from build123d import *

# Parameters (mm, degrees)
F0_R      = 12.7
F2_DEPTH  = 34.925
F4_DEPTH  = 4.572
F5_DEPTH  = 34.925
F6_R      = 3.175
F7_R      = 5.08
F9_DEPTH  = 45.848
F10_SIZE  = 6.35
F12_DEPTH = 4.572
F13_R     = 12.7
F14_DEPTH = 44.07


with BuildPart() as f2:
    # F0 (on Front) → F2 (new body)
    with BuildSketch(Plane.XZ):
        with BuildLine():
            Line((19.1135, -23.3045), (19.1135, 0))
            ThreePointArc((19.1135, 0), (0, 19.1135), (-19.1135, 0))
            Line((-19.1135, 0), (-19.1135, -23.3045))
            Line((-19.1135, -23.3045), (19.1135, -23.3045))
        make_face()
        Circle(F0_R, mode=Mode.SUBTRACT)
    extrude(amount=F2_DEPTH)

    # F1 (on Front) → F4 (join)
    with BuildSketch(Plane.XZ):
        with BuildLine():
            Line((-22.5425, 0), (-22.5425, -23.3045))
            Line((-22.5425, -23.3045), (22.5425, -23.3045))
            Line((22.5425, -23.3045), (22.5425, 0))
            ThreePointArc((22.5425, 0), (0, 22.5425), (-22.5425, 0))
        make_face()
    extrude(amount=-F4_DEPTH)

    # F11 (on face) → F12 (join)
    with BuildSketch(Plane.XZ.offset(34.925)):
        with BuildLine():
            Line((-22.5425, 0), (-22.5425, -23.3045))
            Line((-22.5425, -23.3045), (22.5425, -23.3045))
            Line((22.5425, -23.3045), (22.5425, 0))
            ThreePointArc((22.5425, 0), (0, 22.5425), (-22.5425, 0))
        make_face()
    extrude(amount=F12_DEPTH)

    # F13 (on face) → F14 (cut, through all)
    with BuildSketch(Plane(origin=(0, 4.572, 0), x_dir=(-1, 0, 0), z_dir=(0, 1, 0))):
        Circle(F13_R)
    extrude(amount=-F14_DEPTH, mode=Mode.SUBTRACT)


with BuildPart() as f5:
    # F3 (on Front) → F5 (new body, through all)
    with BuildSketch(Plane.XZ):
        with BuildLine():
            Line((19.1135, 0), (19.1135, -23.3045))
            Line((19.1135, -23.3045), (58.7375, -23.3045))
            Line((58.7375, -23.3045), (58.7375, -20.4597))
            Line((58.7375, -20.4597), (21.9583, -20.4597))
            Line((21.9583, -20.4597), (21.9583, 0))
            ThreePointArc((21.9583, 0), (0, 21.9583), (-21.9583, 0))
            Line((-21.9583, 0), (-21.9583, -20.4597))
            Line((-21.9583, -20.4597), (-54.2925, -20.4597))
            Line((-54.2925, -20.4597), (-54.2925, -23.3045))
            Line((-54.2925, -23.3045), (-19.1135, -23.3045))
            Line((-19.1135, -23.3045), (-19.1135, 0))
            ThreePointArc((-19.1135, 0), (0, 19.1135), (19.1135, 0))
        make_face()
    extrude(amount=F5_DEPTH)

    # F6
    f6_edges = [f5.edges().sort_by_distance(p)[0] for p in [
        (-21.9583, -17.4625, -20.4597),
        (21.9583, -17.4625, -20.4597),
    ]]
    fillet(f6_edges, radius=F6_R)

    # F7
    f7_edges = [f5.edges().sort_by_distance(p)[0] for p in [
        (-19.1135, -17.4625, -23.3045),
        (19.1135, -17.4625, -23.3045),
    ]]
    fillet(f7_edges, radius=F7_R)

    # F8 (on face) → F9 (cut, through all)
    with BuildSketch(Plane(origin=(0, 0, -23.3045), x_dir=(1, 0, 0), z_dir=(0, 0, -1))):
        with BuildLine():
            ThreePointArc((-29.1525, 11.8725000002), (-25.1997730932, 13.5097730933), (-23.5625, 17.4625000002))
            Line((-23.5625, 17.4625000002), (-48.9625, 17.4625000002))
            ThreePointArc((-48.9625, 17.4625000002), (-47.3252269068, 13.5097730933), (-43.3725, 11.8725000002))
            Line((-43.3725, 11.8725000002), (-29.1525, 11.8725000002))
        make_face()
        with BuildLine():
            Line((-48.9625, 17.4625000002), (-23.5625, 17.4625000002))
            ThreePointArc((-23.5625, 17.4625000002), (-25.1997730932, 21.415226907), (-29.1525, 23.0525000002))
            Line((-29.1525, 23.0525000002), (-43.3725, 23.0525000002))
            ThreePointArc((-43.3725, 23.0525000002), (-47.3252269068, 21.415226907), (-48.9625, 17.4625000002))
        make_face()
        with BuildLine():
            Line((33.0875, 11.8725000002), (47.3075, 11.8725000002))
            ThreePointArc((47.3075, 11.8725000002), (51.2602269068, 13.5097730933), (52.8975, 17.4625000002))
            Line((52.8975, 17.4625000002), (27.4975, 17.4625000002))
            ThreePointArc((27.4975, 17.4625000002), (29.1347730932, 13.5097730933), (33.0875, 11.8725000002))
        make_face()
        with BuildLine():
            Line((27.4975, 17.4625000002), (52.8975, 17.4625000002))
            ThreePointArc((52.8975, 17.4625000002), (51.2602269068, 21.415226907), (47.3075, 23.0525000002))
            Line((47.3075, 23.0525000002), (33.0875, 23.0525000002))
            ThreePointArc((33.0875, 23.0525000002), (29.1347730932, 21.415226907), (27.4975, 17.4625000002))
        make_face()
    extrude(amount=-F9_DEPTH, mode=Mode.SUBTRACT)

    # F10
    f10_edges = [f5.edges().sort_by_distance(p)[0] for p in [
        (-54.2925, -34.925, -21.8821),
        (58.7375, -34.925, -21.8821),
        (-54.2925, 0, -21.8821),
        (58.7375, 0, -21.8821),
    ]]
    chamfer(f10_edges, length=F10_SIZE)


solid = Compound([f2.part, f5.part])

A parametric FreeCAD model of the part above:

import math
import FreeCAD as App
import Part
import Sketcher
Q = App.Units.Quantity


def edges_at(feature, points):
    """Names of the edges that pass closest to the given points."""
    edges = feature.Shape.Edges
    near = lambda p: min(range(len(edges)), key=lambda i: edges[i].distToShape(Part.Vertex(*p))[0])
    return sorted({f"Edge{near(p) + 1}" for p in points})

doc = App.newDocument("Part")
body = doc.addObject("PartDesign::Body", "Body")

# Sketch on XZ plane
sketch1 = body.newObject("Sketcher::SketchObject", "Sketch")
sketch1.AttachmentSupport = (doc.getObject("XZ_Plane"), [""])
sketch1.MapMode = "FlatFace"
sketch1.addGeometry([
    Part.LineSegment(App.Vector(19, -23, 0), App.Vector(19, 0, 0)),  # 0
    Part.ArcOfCircle(Part.Circle(App.Vector(0, 0, 0), App.Vector(0, 0, 1), 19), math.radians(0), math.radians(180)),  # 1
    Part.LineSegment(App.Vector(-19, 0, 0), App.Vector(-19, -23, 0)),  # 2
    Part.LineSegment(App.Vector(-19, -23, 0), App.Vector(19, -23, 0)),  # 3
    Part.Circle(App.Vector(0, 0, 0), App.Vector(0, 0, 1), 13),  # 4
], False)
sketch1.addConstraint([
    Sketcher.Constraint("Tangent", 0, 2, 1, 1),
    Sketcher.Constraint("Tangent", 1, 2, 2, 1),
    Sketcher.Constraint("Coincident", 2, 2, 3, 1),
    Sketcher.Constraint("Coincident", 3, 2, 0, 1),
    Sketcher.Constraint("Vertical", 0),
    Sketcher.Constraint("Vertical", 2),
    Sketcher.Constraint("Horizontal", 3),
    Sketcher.Constraint("Coincident", 1, 3, -1, 1),
    Sketcher.Constraint("Coincident", 4, 3, -1, 1),
    Sketcher.Constraint("Diameter", 4, Q("1 in")),
    Sketcher.Constraint("Radius", 1, Q("0.7525 in")),
    Sketcher.Constraint("DistanceY", 0, 1, 0, 2, Q("0.9175 in")),
])
pad1 = body.newObject("PartDesign::Pad", "Pad")
pad1.Profile = sketch1
pad1.Length = Q("1.375 in")

# Sketch on XZ plane
sketch2 = body.newObject("Sketcher::SketchObject", "Sketch001")
sketch2.AttachmentSupport = (doc.getObject("XZ_Plane"), [""])
sketch2.MapMode = "FlatFace"
sketch2.addGeometry([
    Part.LineSegment(App.Vector(-23, 0, 0), App.Vector(-23, -23, 0)),
    Part.LineSegment(App.Vector(-23, -23, 0), App.Vector(23, -23, 0)),
    Part.LineSegment(App.Vector(23, -23, 0), App.Vector(23, 0, 0)),
    Part.ArcOfCircle(Part.Circle(App.Vector(0, 0, 0), App.Vector(0, 0, 1), 23), math.radians(0), math.radians(180)),
], False)
sketch2.addConstraint([
    Sketcher.Constraint("Coincident", 0, 2, 1, 1),
    Sketcher.Constraint("Coincident", 1, 2, 2, 1),
    Sketcher.Constraint("Tangent", 2, 2, 3, 1),
    Sketcher.Constraint("Tangent", 3, 2, 0, 1),
    Sketcher.Constraint("Vertical", 0),
    Sketcher.Constraint("Horizontal", 1),
    Sketcher.Constraint("Vertical", 2),
    Sketcher.Constraint("Coincident", 3, 3, -1, 1),
    Sketcher.Constraint("Radius", 3, Q("0.8875 in")),
    Sketcher.Constraint("DistanceY", 0, 2, 0, 1, Q("0.9175 in")),
])
pad2 = body.newObject("PartDesign::Pad", "Pad001")
pad2.Profile = sketch2
pad2.Length = Q("0.18 in")
pad2.Reversed = True

# Sketch on XZ plane
sketch3 = body.newObject("Sketcher::SketchObject", "Sketch002")
sketch3.AttachmentSupport = (doc.getObject("XZ_Plane"), [""])
sketch3.MapMode = "FlatFace"
sketch3.AttachmentOffset = App.Placement(App.Vector(0, 0, 1.375 * 25.4), App.Rotation())
sketch3.addGeometry([
    Part.LineSegment(App.Vector(-23, 0, 0), App.Vector(-23, -23, 0)),
    Part.LineSegment(App.Vector(-23, -23, 0), App.Vector(23, -23, 0)),
    Part.LineSegment(App.Vector(23, -23, 0), App.Vector(23, 0, 0)),
    Part.ArcOfCircle(Part.Circle(App.Vector(0, 0, 0), App.Vector(0, 0, 1), 23), math.radians(0), math.radians(180)),
], False)
sketch3.addConstraint([
    Sketcher.Constraint("Coincident", 0, 2, 1, 1),
    Sketcher.Constraint("Coincident", 1, 2, 2, 1),
    Sketcher.Constraint("Tangent", 2, 2, 3, 1),
    Sketcher.Constraint("Tangent", 3, 2, 0, 1),
    Sketcher.Constraint("Vertical", 0),
    Sketcher.Constraint("Horizontal", 1),
    Sketcher.Constraint("Vertical", 2),
    Sketcher.Constraint("Coincident", 3, 3, -1, 1),
    Sketcher.Constraint("Radius", 3, Q("0.8875 in")),
    Sketcher.Constraint("DistanceY", 0, 2, 0, 1, Q("0.9175 in")),
])
pad3 = body.newObject("PartDesign::Pad", "Pad002")
pad3.Profile = sketch3
pad3.Length = Q("0.18 in")

# Sketch on XZ plane
sketch4 = body.newObject("Sketcher::SketchObject", "Sketch003")
sketch4.AttachmentSupport = (doc.getObject("XZ_Plane"), [""])
sketch4.MapMode = "FlatFace"
sketch4.AttachmentOffset = App.Placement(App.Vector(0, 0, -0.18 * 25.4), App.Rotation())
sketch4.addGeometry(Part.Circle(App.Vector(0, 0, 0), App.Vector(0, 0, 1), 13), False)
sketch4.addConstraint([
    Sketcher.Constraint("Coincident", 0, 3, -1, 1),
    Sketcher.Constraint("Diameter", 0, Q("1 in")),
])
pocket1 = body.newObject("PartDesign::Pocket", "Pocket")
pocket1.Profile = sketch4
pocket1.Type = "ThroughAll"
pocket1.Reversed = True
body2 = doc.addObject("PartDesign::Body", "Body001")

# Sketch on XZ plane
sketch5 = body2.newObject("Sketcher::SketchObject", "Sketch004")
sketch5.AttachmentSupport = (doc.getObject("XZ_Plane001"), [""])
sketch5.MapMode = "FlatFace"
sketch5.addGeometry([
    Part.LineSegment(App.Vector(19.1, 0, 0), App.Vector(19.1, -23.3, 0)),  # 0
    Part.LineSegment(App.Vector(19.1, -23.3, 0), App.Vector(58.7, -23.3, 0)),  # 1
    Part.LineSegment(App.Vector(58.7, -23.3, 0), App.Vector(58.7, -20.5, 0)),  # 2
    Part.LineSegment(App.Vector(58.7, -20.5, 0), App.Vector(22, -20.5, 0)),  # 3
    Part.LineSegment(App.Vector(22, -20.5, 0), App.Vector(22, 0, 0)),  # 4
    Part.ArcOfCircle(Part.Circle(App.Vector(0, 0, 0), App.Vector(0, 0, 1), 22), math.radians(0), math.radians(180)),  # 5
    Part.LineSegment(App.Vector(-22, 0, 0), App.Vector(-22, -20.5, 0)),  # 6
    Part.LineSegment(App.Vector(-22, -20.5, 0), App.Vector(-54.3, -20.5, 0)),  # 7
    Part.LineSegment(App.Vector(-54.3, -20.5, 0), App.Vector(-54.3, -23.3, 0)),  # 8
    Part.LineSegment(App.Vector(-54.3, -23.3, 0), App.Vector(-19.1, -23.3, 0)),  # 9
    Part.LineSegment(App.Vector(-19.1, -23.3, 0), App.Vector(-19.1, 0, 0)),  # 10
    Part.ArcOfCircle(Part.Circle(App.Vector(0, 0, 0), App.Vector(0, 0, 1), 19.1), math.radians(0), math.radians(180)),  # 11
], False)
sketch5.addConstraint([
    Sketcher.Constraint("Coincident", 0, 2, 1, 1),
    Sketcher.Constraint("Coincident", 1, 2, 2, 1),
    Sketcher.Constraint("Coincident", 2, 2, 3, 1),
    Sketcher.Constraint("Coincident", 3, 2, 4, 1),
    Sketcher.Constraint("Tangent", 4, 2, 5, 1),
    Sketcher.Constraint("Tangent", 5, 2, 6, 1),
    Sketcher.Constraint("Coincident", 6, 2, 7, 1),
    Sketcher.Constraint("Coincident", 7, 2, 8, 1),
    Sketcher.Constraint("Coincident", 8, 2, 9, 1),
    Sketcher.Constraint("Coincident", 9, 2, 10, 1),
    Sketcher.Constraint("Tangent", 10, 2, 11, 2),
    Sketcher.Constraint("Tangent", 11, 1, 0, 1),
    Sketcher.Constraint("Vertical", 0),
    Sketcher.Constraint("Horizontal", 1),
    Sketcher.Constraint("Vertical", 2),
    Sketcher.Constraint("Horizontal", 3),
    Sketcher.Constraint("Vertical", 4),
    Sketcher.Constraint("Vertical", 6),
    Sketcher.Constraint("Horizontal", 7),
    Sketcher.Constraint("Vertical", 8),
    Sketcher.Constraint("Horizontal", 9),
    Sketcher.Constraint("Vertical", 10),
    Sketcher.Constraint("Coincident", 5, 3, -1, 1),
    Sketcher.Constraint("Coincident", 11, 3, -1, 1),
    Sketcher.Constraint("Horizontal", 3, 2, 6, 2),
    Sketcher.Constraint("Horizontal", 1, 2, 8, 2),
    Sketcher.Constraint("DistanceX", 1, 1, 1, 2, Q("1.56 in")),
    Sketcher.Constraint("Radius", 5, Q("0.8645 in")),
    Sketcher.Constraint("Radius", 11, Q("0.7525 in")),
    Sketcher.Constraint("DistanceX", 7, 2, 7, 1, Q("1.273 in")),
    Sketcher.Constraint("DistanceY", 2, 1, 2, 2, Q("0.112 in")),
    Sketcher.Constraint("DistanceY", 0, 2, 0, 1, Q("0.9175 in")),
])
pad4 = body2.newObject("PartDesign::Pad", "Pad003")
pad4.Profile = sketch5
pad4.Length = Q("1.375 in")
doc.recompute()

fillet = body2.newObject("PartDesign::Fillet", "Fillet")
fillet.Base = (pad4, edges_at(pad4, [(-21.958, -17.462, -20.46), (21.958, -17.462, -20.46)]))
fillet.Radius = Q("0.125 in")
doc.recompute()

fillet2 = body2.newObject("PartDesign::Fillet", "Fillet001")
fillet2.Base = (fillet, edges_at(fillet, [(-19.113, -17.462, -23.305), (19.113, -17.462, -23.305)]))
fillet2.Radius = Q("0.2 in")

# Sketch on XY plane
sketch6 = body2.newObject("Sketcher::SketchObject", "Sketch005")
sketch6.AttachmentSupport = (doc.getObject("XY_Plane001"), [""])
sketch6.MapMode = "FlatFace"
sketch6.AttachmentOffset = App.Placement(App.Vector(0, 0, -0.9175 * 25.4), App.Rotation())
sketch6.addGeometry([
    Part.ArcOfCircle(Part.Circle(App.Vector(-29, -17, 0), App.Vector(0, 0, 1), 6), math.radians(0), math.radians(90)),  # 0
    Part.ArcOfCircle(Part.Circle(App.Vector(-29, -17, 0), App.Vector(0, 0, 1), 6), math.radians(-90), math.radians(0)),  # 1
    Part.LineSegment(App.Vector(-29, -23, 0), App.Vector(-43, -23, 0)),  # 2
    Part.ArcOfCircle(Part.Circle(App.Vector(-43, -17, 0), App.Vector(0, 0, 1), 6), math.radians(180), math.radians(270)),  # 3
    Part.ArcOfCircle(Part.Circle(App.Vector(-43, -17, 0), App.Vector(0, 0, 1), 6), math.radians(90), math.radians(180)),  # 4
    Part.LineSegment(App.Vector(-43, -12, 0), App.Vector(-29, -12, 0)),  # 5
    Part.LineSegment(App.Vector(33, -12, 0), App.Vector(47, -12, 0)),  # 6
    Part.ArcOfCircle(Part.Circle(App.Vector(47, -17, 0), App.Vector(0, 0, 1), 6), math.radians(0), math.radians(90)),  # 7
    Part.ArcOfCircle(Part.Circle(App.Vector(47, -17, 0), App.Vector(0, 0, 1), 6), math.radians(-90), math.radians(0)),  # 8
    Part.LineSegment(App.Vector(47, -23, 0), App.Vector(33, -23, 0)),  # 9
    Part.ArcOfCircle(Part.Circle(App.Vector(33, -17, 0), App.Vector(0, 0, 1), 6), math.radians(180), math.radians(270)),  # 10
    Part.ArcOfCircle(Part.Circle(App.Vector(33, -17, 0), App.Vector(0, 0, 1), 6), math.radians(90), math.radians(180)),  # 11
], False)
sketch6.addConstraint([
    Sketcher.Constraint("Tangent", 0, 1, 1, 2),
    Sketcher.Constraint("Tangent", 1, 1, 2, 1),
    Sketcher.Constraint("Tangent", 2, 2, 3, 2),
    Sketcher.Constraint("Tangent", 3, 1, 4, 2),
    Sketcher.Constraint("Tangent", 4, 1, 5, 1),
    Sketcher.Constraint("Tangent", 5, 2, 0, 2),
    Sketcher.Constraint("Tangent", 6, 2, 7, 2),
    Sketcher.Constraint("Tangent", 7, 1, 8, 2),
    Sketcher.Constraint("Tangent", 8, 1, 9, 1),
    Sketcher.Constraint("Tangent", 9, 2, 10, 2),
    Sketcher.Constraint("Tangent", 10, 1, 11, 2),
    Sketcher.Constraint("Tangent", 11, 1, 6, 1),
    Sketcher.Constraint("Horizontal", 2),
    Sketcher.Constraint("Horizontal", 5),
    Sketcher.Constraint("Horizontal", 6),
    Sketcher.Constraint("Horizontal", 9),
    Sketcher.Constraint("Equal", 0, 1),
    Sketcher.Constraint("Equal", 1, 3),
    Sketcher.Constraint("Equal", 4, 7),
    Sketcher.Constraint("Equal", 7, 8),
    Sketcher.Constraint("Equal", 8, 10),
    Sketcher.Constraint("Horizontal", 4, 3, 7, 3),
    Sketcher.Constraint("Horizontal", 11, 3, 0, 1),
    Sketcher.Constraint("Horizontal", 0, 1, 3, 1),
    Sketcher.Constraint("Horizontal", 3, 1, 7, 1),
    Sketcher.Constraint("Horizontal", 7, 1, 10, 1),
    Sketcher.Constraint("Equal", 5, 6),
    Sketcher.Constraint("Radius", 0, 5.59),
    Sketcher.Constraint("DistanceY", 0, 3, -1, 1, Q("0.6875 in")),
    Sketcher.Constraint("DistanceX", 2, 2, 2, 1, 14.22),
    Sketcher.Constraint("DistanceX", -1, 1, 7, 3, Q("1.8625 in")),
    Sketcher.Constraint("DistanceX", 0, 3, -1, 1, 29.1525),
])
pocket2 = body2.newObject("PartDesign::Pocket", "Pocket001")
pocket2.Profile = sketch6
pocket2.Type = "ThroughAll"
pocket2.Reversed = True
doc.recompute()

chamfer = body2.newObject("PartDesign::Chamfer", "Chamfer")
chamfer.Base = (pocket2, edges_at(pocket2, [
    (-54.292, -34.925, -21.882),
    (58.737, -34.925, -21.882),
    (-54.292, 0, -21.882),
    (58.737, 0, -21.882),
]))
chamfer.Size = Q("0.25 in")

doc.recompute()
